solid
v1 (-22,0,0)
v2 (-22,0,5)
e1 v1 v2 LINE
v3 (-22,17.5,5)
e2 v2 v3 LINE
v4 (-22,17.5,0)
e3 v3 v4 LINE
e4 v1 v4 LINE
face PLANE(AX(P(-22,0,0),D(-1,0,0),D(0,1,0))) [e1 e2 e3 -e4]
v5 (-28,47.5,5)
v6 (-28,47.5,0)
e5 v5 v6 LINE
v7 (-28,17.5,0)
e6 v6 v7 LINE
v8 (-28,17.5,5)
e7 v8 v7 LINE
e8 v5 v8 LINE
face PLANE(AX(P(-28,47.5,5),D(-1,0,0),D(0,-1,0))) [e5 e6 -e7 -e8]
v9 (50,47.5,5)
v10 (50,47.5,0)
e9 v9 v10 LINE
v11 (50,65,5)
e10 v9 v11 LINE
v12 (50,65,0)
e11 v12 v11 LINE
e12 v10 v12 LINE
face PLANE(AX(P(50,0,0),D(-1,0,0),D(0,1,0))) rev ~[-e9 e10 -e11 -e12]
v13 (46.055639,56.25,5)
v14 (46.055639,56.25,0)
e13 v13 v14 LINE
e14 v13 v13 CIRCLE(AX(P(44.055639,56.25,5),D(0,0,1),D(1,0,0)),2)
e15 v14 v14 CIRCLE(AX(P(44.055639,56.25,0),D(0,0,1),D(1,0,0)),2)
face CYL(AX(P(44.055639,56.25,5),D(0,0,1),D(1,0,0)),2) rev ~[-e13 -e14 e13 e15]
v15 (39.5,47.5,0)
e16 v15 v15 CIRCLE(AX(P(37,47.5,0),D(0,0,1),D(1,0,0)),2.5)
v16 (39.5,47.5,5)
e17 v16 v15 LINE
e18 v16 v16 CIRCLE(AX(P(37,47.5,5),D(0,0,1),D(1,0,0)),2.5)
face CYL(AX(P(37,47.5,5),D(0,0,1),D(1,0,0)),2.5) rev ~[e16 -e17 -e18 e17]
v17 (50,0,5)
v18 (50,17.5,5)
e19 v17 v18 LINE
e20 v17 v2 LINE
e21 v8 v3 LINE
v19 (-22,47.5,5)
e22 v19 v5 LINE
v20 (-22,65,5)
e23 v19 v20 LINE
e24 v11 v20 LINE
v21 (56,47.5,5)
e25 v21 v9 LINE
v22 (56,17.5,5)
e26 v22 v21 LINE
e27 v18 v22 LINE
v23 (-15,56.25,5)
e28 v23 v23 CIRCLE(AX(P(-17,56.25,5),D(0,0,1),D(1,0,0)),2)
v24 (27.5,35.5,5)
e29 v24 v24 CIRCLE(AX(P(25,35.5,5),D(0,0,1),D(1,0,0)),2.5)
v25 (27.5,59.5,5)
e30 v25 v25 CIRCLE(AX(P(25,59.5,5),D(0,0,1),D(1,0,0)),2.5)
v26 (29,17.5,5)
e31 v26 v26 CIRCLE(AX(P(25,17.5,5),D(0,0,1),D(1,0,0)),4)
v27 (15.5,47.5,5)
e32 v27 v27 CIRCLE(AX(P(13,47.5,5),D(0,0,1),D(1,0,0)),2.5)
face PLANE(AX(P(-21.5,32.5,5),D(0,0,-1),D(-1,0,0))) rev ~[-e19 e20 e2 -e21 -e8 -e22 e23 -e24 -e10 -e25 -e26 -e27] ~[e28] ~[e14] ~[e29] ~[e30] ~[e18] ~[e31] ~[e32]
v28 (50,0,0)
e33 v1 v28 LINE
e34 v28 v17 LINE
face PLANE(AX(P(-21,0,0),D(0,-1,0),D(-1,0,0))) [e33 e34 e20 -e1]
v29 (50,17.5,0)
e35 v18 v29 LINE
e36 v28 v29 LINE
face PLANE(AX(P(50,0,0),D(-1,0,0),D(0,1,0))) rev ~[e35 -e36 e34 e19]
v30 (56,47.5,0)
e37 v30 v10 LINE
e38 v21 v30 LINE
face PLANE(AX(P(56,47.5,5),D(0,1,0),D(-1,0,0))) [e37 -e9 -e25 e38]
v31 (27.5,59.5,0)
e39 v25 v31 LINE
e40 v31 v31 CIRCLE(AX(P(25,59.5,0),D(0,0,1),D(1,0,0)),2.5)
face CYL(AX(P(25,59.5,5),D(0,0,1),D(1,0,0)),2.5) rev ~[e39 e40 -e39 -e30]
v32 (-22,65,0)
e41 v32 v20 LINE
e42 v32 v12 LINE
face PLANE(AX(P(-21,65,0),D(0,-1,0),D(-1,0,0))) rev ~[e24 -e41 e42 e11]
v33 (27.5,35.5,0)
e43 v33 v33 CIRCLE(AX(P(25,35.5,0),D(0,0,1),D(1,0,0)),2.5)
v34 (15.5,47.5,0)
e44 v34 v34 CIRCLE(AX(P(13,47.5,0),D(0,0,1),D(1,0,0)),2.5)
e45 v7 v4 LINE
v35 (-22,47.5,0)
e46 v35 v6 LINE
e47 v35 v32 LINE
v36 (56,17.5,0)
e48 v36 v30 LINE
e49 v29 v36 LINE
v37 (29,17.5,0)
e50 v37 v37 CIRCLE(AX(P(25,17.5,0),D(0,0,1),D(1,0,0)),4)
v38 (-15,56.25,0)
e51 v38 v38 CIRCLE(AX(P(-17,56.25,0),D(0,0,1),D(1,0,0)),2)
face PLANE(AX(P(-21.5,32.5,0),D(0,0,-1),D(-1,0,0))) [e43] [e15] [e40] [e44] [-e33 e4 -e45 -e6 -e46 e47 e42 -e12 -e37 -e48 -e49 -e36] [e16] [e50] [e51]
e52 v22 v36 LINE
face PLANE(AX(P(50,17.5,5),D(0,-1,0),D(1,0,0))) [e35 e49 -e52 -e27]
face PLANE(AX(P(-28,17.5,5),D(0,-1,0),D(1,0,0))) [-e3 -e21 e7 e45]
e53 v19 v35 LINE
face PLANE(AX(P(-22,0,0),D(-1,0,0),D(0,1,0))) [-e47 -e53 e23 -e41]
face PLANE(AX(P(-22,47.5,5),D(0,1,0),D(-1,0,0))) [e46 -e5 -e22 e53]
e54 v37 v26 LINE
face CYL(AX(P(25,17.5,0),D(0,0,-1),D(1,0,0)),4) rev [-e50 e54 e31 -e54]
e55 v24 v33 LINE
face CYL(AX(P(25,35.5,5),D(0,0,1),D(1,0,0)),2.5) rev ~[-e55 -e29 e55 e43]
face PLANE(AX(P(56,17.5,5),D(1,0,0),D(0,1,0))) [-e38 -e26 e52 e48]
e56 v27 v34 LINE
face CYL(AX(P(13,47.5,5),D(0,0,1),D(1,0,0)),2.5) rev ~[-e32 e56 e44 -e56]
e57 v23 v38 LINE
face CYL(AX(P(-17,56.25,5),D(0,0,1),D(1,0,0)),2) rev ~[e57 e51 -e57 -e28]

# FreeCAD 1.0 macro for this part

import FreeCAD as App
import Part
import Sketcher

V = App.Vector
Q = App.Units.Quantity


def add_polygon(sketch, points):
    """Adds a closed chain of lines whose ends are joined by coincident constraints."""
    first, n = sketch.GeometryCount, len(points)
    for a, b in zip(points, points[1:] + points[:1]):
        sketch.addGeometry(Part.LineSegment(App.Vector(*a, 0), App.Vector(*b, 0)), False)
    for i in range(n):
        sketch.addConstraint(Sketcher.Constraint("Coincident", first + i, 2, first + (i + 1) % n, 1))

doc = App.newDocument("Part")
body = doc.addObject("PartDesign::Body", "Body")

sketch1 = body.newObject("Sketcher::SketchObject", "Sketch")
sketch1.AttachmentSupport = (doc.getObject("XY_Plane"), [""])
sketch1.MapMode = "FlatFace"
add_polygon(sketch1, [(0, 65), (0, 0), (50, 0), (50, 65)])
sketch1.addGeometry(Part.Circle(V(25, 17.5, 0), V(0, 0, 1), 4), False)
sketch1.addGeometry(Part.Circle(V(13, 47.5, 0), V(0, 0, 1), 2), False)
sketch1.addGeometry(Part.Circle(V(37, 47.5, 0), V(0, 0, 1), 2), False)
sketch1.addGeometry(Part.Circle(V(25, 59.5, 0), V(0, 0, 1), 2), False)
sketch1.addConstraint(Sketcher.Constraint("Vertical", 0))
sketch1.addConstraint(Sketcher.Constraint("Horizontal", 1))
sketch1.addConstraint(Sketcher.Constraint("Vertical", 2))
sketch1.addConstraint(Sketcher.Constraint("Horizontal", 3))
sketch1.addConstraint(Sketcher.Constraint("Coincident", 0, 2, -1, 1))
sketch1.addConstraint(Sketcher.Constraint("Equal", 5, 6))
sketch1.addConstraint(Sketcher.Constraint("Equal", 6, 7))
sketch1.addConstraint(Sketcher.Constraint("Horizontal", 5, 3, 6, 3))
sketch1.addConstraint(Sketcher.Constraint("Vertical", 4, 3, 7, 3))
sketch1.addConstraint(Sketcher.Constraint("Diameter", 4, Q("8 mm")))
sketch1.addConstraint(Sketcher.Constraint("Diameter", 5, Q("4 mm")))
sketch1.addConstraint(Sketcher.Constraint("DistanceX", 1, 1, 1, 2, Q("50 mm")))
sketch1.addConstraint(Sketcher.Constraint("DistanceY", 0, 2, 0, 1, Q("65 mm")))
sketch1.addConstraint(Sketcher.Constraint("DistanceX", -1, 1, 4, 3, Q("25 mm")))
sketch1.addConstraint(Sketcher.Constraint("DistanceX", -1, 1, 5, 3, Q("13 mm")))
sketch1.addConstraint(Sketcher.Constraint("DistanceX", -1, 1, 6, 3, Q("37 mm")))
sketch1.addConstraint(Sketcher.Constraint("DistanceY", 4, 3, 5, 3, Q("30 mm")))
sketch1.addConstraint(Sketcher.Constraint("DistanceY", 5, 3, 7, 3, Q("12 mm")))
sketch1.addConstraint(Sketcher.Constraint("DistanceY", -1, 1, 4, 3, Q("17.5 mm")))
pad1 = body.newObject("PartDesign::Pad", "Pad")
pad1.Profile = sketch1
pad1.Length = 5

sketch2 = body.newObject("Sketcher::SketchObject", "Sketch001")
sketch2.AttachmentSupport = (doc.getObject("XY_Plane"), [""])
sketch2.MapMode = "FlatFace"
sketch2.AttachmentOffset = App.Placement(V(0, 0, 5), App.Rotation())
add_polygon(sketch2, [(-21, 65), (-21, 0), (0, 0), (0, 65)])
sketch2.addConstraint(Sketcher.Constraint("Vertical", 0))
sketch2.addConstraint(Sketcher.Constraint("Horizontal", 1))
sketch2.addConstraint(Sketcher.Constraint("Vertical", 2))
sketch2.addConstraint(Sketcher.Constraint("Horizontal", 3))
sketch2.addConstraint(Sketcher.Constraint("Coincident", 1, 2, -1, 1))
sketch2.addConstraint(Sketcher.Constraint("DistanceX", 1, 1, 1, 2, Q("21 mm")))
sketch2.addConstraint(Sketcher.Constraint("DistanceY", 0, 2, 0, 1, Q("65 mm")))
pad2 = body.newObject("PartDesign::Pad", "Pad001")
pad2.Profile = sketch2
pad2.Length = 5
pad2.Reversed = True

sketch3 = body.newObject("Sketcher::SketchObject", "Sketch002")
sketch3.AttachmentSupport = (doc.getObject("XY_Plane"), [""])
sketch3.MapMode = "FlatFace"
add_polygon(sketch3, [(-21, 65), (-21, 0), (-22, 0), (-22, 65)])
sketch3.addConstraint(Sketcher.Constraint("Vertical", 0))
sketch3.addConstraint(Sketcher.Constraint("Horizontal", 1))
sketch3.addConstraint(Sketcher.Constraint("Vertical", 2))
sketch3.addConstraint(Sketcher.Constraint("Horizontal", 3))
sketch3.addConstraint(Sketcher.Constraint("PointOnObject", 0, 2, -1))
sketch3.addConstraint(Sketcher.Constraint("DistanceX", 1, 2, 1, 1, Q("1 mm")))
sketch3.addConstraint(Sketcher.Constraint("DistanceY", 0, 2, 0, 1, Q("65 mm")))
sketch3.addConstraint(Sketcher.Constraint("DistanceX", 0, 2, -1, 1, Q("21 mm")))
pad3 = body.newObject("PartDesign::Pad", "Pad002")
pad3.Profile = sketch3
pad3.Length = 5

sketch4 = body.newObject("Sketcher::SketchObject", "Sketch003")
sketch4.AttachmentSupport = (doc.getObject("XY_Plane"), [""])
sketch4.MapMode = "FlatFace"
sketch4.AttachmentOffset = App.Placement(V(0, 0, 5), App.Rotation())
add_polygon(sketch4, [(-22, 18), (-22, 48), (-28, 48), (-28, 18)])
add_polygon(sketch4, [(56, 18), (56, 48), (50, 48), (50, 18)])
sketch4.addConstraint(Sketcher.Constraint("Vertical", 0))
sketch4.addConstraint(Sketcher.Constraint("Horizontal", 1))
sketch4.addConstraint(Sketcher.Constraint("Vertical", 2))
sketch4.addConstraint(Sketcher.Constraint("Horizontal", 3))
sketch4.addConstraint(Sketcher.Constraint("Vertical", 4))
sketch4.addConstraint(Sketcher.Constraint("Horizontal", 5))
sketch4.addConstraint(Sketcher.Constraint("Vertical", 6))
sketch4.addConstraint(Sketcher.Constraint("Horizontal", 7))
sketch4.addConstraint(Sketcher.Constraint("Horizontal", 1, 2, 4, 2))
sketch4.addConstraint(Sketcher.Constraint("Horizontal", 3, 2, 6, 2))
sketch4.addConstraint(Sketcher.Constraint("Equal", 3, 5))
sketch4.addConstraint(Sketcher.Constraint("DistanceX", 1, 2, 1, 1, Q("6 mm")))
sketch4.addConstraint(Sketcher.Constraint("DistanceY", 0, 1, 0, 2, Q("30 mm")))
sketch4.addConstraint(Sketcher.Constraint("DistanceX", 0, 2, -1, 1, Q("22 mm")))
sketch4.addConstraint(Sketcher.Constraint("DistanceX", -1, 1, 4, 2, Q("56 mm")))
sketch4.addConstraint(Sketcher.Constraint("DistanceY", -1, 1, 0, 2, Q("47.5 mm")))
pad4 = body.newObject("PartDesign::Pad", "Pad003")
pad4.Profile = sketch4
pad4.Length = 5
pad4.Reversed = True

sketch5 = body.newObject("Sketcher::SketchObject", "Sketch004")
sketch5.AttachmentSupport = (doc.getObject("XY_Plane"), [""])
sketch5.MapMode = "FlatFace"
sketch5.AttachmentOffset = App.Placement(V(0, 0, 5), App.Rotation())
sketch5.addGeometry(Part.Circle(V(25, 35.5, 0), V(0, 0, 1), 2), False)
sketch5.addConstraint(Sketcher.Constraint("Diameter", 0, Q("4 mm")))
sketch5.addConstraint(Sketcher.Constraint("DistanceX", -1, 1, 0, 3, Q("25 mm")))
sketch5.addConstraint(Sketcher.Constraint("DistanceY", -1, 1, 0, 3, Q("35.5 mm")))
pocket1 = body.newObject("PartDesign::Pocket", "Pocket")
pocket1.Profile = sketch5
pocket1.Length = 59

sketch6 = body.newObject("Sketcher::SketchObject", "Sketch005")
sketch6.AttachmentSupport = (doc.getObject("XY_Plane"), [""])
sketch6.MapMode = "FlatFace"
sketch6.AttachmentOffset = App.Placement(V(0, 0, 5), App.Rotation())
sketch6.addGeometry(Part.Circle(V(-17, 56.2, 0), V(0, 0, 1), 1.5), False)
sketch6.addGeometry(Part.Circle(V(44.1, 56.2, 0), V(0, 0, 1), 1.5), False)
sketch6.addConstraint(Sketcher.Constraint("Equal", 0, 1))
sketch6.addConstraint(Sketcher.Constraint("Horizontal", 0, 3, 1, 3))
sketch6.addConstraint(Sketcher.Constraint("Diameter", 0, Q("3 mm")))
sketch6.addConstraint(Sketcher.Constraint("DistanceX", 0, 3, -1, 1, Q("17 mm")))
sketch6.addConstraint(Sketcher.Constraint("DistanceY", -1, 1, 0, 3, Q("56.25 mm")))
sketch6.addConstraint(Sketcher.Constraint("DistanceX", -1, 1, 1, 3, Q("44.055639 mm")))
pocket2 = body.newObject("PartDesign::Pocket", "Pocket001")
pocket2.Profile = sketch6
pocket2.Length = 10

sketch7 = body.newObject("Sketcher::SketchObject", "Sketch006")
sketch7.AttachmentSupport = (doc.getObject("XY_Plane"), [""])
sketch7.MapMode = "FlatFace"
sketch7.AttachmentOffset = App.Placement(V(0, 0, 5), App.Rotation())
sketch7.addGeometry(Part.Circle(V(-17, 56.2, 0), V(0, 0, 1), 2), False)
sketch7.addGeometry(Part.Circle(V(44.1, 56.2, 0), V(0, 0, 1), 2), False)
sketch7.addConstraint(Sketcher.Constraint("Equal", 0, 1))
sketch7.addConstraint(Sketcher.Constraint("Horizontal", 0, 3, 1, 3))
sketch7.addConstraint(Sketcher.Constraint("Diameter", 0, Q("4 mm")))
sketch7.addConstraint(Sketcher.Constraint("DistanceX", 0, 3, -1, 1, Q("17 mm")))
sketch7.addConstraint(Sketcher.Constraint("DistanceY", -1, 1, 0, 3, Q("56.25 mm")))
sketch7.addConstraint(Sketcher.Constraint("DistanceX", -1, 1, 1, 3, Q("44.055639 mm")))
pocket3 = body.newObject("PartDesign::Pocket", "Pocket002")
pocket3.Profile = sketch7
pocket3.Length = 10

sketch8 = body.newObject("Sketcher::SketchObject", "Sketch007")
sketch8.AttachmentSupport = (doc.getObject("XY_Plane"), [""])
sketch8.MapMode = "FlatFace"
sketch8.AttachmentOffset = App.Placement(V(0, 0, 5), App.Rotation())
sketch8.addGeometry(Part.Circle(V(25, 59.5, 0), V(0, 0, 1), 2.5), False)
sketch8.addGeometry(Part.Circle(V(25, 35.5, 0), V(0, 0, 1), 2.5), False)
sketch8.addGeometry(Part.Circle(V(13, 47.5, 0), V(0, 0, 1), 2.5), False)
sketch8.addGeometry(Part.Circle(V(37, 47.5, 0), V(0, 0, 1), 2.5), False)
sketch8.addConstraint(Sketcher.Constraint("Equal", 0, 1))
sketch8.addConstraint(Sketcher.Constraint("Equal", 1, 2))
sketch8.addConstraint(Sketcher.Constraint("Equal", 2, 3))
sketch8.addConstraint(Sketcher.Constraint("Horizontal", 2, 3, 3, 3))
sketch8.addConstraint(Sketcher.Constraint("Vertical", 0, 3, 1, 3))
sketch8.addConstraint(Sketcher.Constraint("Diameter", 0, Q("5 mm")))
sketch8.addConstraint(Sketcher.Constraint("DistanceX", -1, 1, 0, 3, Q("25 mm")))
sketch8.addConstraint(Sketcher.Constraint("DistanceX", -1, 1, 2, 3, Q("13 mm")))
sketch8.addConstraint(Sketcher.Constraint("DistanceX", -1, 1, 3, 3, Q("37 mm")))
sketch8.addConstraint(Sketcher.Constraint("DistanceY", 1, 3, 0, 3, Q("24 mm")))
sketch8.addConstraint(Sketcher.Constraint("DistanceY", 2, 3, 0, 3, Q("12 mm")))
sketch8.addConstraint(Sketcher.Constraint("DistanceY", -1, 1, 0, 3, Q("59.5 mm")))
pocket4 = body.newObject("PartDesign::Pocket", "Pocket003")
pocket4.Profile = sketch8
pocket4.Length = 10

doc.recompute()
